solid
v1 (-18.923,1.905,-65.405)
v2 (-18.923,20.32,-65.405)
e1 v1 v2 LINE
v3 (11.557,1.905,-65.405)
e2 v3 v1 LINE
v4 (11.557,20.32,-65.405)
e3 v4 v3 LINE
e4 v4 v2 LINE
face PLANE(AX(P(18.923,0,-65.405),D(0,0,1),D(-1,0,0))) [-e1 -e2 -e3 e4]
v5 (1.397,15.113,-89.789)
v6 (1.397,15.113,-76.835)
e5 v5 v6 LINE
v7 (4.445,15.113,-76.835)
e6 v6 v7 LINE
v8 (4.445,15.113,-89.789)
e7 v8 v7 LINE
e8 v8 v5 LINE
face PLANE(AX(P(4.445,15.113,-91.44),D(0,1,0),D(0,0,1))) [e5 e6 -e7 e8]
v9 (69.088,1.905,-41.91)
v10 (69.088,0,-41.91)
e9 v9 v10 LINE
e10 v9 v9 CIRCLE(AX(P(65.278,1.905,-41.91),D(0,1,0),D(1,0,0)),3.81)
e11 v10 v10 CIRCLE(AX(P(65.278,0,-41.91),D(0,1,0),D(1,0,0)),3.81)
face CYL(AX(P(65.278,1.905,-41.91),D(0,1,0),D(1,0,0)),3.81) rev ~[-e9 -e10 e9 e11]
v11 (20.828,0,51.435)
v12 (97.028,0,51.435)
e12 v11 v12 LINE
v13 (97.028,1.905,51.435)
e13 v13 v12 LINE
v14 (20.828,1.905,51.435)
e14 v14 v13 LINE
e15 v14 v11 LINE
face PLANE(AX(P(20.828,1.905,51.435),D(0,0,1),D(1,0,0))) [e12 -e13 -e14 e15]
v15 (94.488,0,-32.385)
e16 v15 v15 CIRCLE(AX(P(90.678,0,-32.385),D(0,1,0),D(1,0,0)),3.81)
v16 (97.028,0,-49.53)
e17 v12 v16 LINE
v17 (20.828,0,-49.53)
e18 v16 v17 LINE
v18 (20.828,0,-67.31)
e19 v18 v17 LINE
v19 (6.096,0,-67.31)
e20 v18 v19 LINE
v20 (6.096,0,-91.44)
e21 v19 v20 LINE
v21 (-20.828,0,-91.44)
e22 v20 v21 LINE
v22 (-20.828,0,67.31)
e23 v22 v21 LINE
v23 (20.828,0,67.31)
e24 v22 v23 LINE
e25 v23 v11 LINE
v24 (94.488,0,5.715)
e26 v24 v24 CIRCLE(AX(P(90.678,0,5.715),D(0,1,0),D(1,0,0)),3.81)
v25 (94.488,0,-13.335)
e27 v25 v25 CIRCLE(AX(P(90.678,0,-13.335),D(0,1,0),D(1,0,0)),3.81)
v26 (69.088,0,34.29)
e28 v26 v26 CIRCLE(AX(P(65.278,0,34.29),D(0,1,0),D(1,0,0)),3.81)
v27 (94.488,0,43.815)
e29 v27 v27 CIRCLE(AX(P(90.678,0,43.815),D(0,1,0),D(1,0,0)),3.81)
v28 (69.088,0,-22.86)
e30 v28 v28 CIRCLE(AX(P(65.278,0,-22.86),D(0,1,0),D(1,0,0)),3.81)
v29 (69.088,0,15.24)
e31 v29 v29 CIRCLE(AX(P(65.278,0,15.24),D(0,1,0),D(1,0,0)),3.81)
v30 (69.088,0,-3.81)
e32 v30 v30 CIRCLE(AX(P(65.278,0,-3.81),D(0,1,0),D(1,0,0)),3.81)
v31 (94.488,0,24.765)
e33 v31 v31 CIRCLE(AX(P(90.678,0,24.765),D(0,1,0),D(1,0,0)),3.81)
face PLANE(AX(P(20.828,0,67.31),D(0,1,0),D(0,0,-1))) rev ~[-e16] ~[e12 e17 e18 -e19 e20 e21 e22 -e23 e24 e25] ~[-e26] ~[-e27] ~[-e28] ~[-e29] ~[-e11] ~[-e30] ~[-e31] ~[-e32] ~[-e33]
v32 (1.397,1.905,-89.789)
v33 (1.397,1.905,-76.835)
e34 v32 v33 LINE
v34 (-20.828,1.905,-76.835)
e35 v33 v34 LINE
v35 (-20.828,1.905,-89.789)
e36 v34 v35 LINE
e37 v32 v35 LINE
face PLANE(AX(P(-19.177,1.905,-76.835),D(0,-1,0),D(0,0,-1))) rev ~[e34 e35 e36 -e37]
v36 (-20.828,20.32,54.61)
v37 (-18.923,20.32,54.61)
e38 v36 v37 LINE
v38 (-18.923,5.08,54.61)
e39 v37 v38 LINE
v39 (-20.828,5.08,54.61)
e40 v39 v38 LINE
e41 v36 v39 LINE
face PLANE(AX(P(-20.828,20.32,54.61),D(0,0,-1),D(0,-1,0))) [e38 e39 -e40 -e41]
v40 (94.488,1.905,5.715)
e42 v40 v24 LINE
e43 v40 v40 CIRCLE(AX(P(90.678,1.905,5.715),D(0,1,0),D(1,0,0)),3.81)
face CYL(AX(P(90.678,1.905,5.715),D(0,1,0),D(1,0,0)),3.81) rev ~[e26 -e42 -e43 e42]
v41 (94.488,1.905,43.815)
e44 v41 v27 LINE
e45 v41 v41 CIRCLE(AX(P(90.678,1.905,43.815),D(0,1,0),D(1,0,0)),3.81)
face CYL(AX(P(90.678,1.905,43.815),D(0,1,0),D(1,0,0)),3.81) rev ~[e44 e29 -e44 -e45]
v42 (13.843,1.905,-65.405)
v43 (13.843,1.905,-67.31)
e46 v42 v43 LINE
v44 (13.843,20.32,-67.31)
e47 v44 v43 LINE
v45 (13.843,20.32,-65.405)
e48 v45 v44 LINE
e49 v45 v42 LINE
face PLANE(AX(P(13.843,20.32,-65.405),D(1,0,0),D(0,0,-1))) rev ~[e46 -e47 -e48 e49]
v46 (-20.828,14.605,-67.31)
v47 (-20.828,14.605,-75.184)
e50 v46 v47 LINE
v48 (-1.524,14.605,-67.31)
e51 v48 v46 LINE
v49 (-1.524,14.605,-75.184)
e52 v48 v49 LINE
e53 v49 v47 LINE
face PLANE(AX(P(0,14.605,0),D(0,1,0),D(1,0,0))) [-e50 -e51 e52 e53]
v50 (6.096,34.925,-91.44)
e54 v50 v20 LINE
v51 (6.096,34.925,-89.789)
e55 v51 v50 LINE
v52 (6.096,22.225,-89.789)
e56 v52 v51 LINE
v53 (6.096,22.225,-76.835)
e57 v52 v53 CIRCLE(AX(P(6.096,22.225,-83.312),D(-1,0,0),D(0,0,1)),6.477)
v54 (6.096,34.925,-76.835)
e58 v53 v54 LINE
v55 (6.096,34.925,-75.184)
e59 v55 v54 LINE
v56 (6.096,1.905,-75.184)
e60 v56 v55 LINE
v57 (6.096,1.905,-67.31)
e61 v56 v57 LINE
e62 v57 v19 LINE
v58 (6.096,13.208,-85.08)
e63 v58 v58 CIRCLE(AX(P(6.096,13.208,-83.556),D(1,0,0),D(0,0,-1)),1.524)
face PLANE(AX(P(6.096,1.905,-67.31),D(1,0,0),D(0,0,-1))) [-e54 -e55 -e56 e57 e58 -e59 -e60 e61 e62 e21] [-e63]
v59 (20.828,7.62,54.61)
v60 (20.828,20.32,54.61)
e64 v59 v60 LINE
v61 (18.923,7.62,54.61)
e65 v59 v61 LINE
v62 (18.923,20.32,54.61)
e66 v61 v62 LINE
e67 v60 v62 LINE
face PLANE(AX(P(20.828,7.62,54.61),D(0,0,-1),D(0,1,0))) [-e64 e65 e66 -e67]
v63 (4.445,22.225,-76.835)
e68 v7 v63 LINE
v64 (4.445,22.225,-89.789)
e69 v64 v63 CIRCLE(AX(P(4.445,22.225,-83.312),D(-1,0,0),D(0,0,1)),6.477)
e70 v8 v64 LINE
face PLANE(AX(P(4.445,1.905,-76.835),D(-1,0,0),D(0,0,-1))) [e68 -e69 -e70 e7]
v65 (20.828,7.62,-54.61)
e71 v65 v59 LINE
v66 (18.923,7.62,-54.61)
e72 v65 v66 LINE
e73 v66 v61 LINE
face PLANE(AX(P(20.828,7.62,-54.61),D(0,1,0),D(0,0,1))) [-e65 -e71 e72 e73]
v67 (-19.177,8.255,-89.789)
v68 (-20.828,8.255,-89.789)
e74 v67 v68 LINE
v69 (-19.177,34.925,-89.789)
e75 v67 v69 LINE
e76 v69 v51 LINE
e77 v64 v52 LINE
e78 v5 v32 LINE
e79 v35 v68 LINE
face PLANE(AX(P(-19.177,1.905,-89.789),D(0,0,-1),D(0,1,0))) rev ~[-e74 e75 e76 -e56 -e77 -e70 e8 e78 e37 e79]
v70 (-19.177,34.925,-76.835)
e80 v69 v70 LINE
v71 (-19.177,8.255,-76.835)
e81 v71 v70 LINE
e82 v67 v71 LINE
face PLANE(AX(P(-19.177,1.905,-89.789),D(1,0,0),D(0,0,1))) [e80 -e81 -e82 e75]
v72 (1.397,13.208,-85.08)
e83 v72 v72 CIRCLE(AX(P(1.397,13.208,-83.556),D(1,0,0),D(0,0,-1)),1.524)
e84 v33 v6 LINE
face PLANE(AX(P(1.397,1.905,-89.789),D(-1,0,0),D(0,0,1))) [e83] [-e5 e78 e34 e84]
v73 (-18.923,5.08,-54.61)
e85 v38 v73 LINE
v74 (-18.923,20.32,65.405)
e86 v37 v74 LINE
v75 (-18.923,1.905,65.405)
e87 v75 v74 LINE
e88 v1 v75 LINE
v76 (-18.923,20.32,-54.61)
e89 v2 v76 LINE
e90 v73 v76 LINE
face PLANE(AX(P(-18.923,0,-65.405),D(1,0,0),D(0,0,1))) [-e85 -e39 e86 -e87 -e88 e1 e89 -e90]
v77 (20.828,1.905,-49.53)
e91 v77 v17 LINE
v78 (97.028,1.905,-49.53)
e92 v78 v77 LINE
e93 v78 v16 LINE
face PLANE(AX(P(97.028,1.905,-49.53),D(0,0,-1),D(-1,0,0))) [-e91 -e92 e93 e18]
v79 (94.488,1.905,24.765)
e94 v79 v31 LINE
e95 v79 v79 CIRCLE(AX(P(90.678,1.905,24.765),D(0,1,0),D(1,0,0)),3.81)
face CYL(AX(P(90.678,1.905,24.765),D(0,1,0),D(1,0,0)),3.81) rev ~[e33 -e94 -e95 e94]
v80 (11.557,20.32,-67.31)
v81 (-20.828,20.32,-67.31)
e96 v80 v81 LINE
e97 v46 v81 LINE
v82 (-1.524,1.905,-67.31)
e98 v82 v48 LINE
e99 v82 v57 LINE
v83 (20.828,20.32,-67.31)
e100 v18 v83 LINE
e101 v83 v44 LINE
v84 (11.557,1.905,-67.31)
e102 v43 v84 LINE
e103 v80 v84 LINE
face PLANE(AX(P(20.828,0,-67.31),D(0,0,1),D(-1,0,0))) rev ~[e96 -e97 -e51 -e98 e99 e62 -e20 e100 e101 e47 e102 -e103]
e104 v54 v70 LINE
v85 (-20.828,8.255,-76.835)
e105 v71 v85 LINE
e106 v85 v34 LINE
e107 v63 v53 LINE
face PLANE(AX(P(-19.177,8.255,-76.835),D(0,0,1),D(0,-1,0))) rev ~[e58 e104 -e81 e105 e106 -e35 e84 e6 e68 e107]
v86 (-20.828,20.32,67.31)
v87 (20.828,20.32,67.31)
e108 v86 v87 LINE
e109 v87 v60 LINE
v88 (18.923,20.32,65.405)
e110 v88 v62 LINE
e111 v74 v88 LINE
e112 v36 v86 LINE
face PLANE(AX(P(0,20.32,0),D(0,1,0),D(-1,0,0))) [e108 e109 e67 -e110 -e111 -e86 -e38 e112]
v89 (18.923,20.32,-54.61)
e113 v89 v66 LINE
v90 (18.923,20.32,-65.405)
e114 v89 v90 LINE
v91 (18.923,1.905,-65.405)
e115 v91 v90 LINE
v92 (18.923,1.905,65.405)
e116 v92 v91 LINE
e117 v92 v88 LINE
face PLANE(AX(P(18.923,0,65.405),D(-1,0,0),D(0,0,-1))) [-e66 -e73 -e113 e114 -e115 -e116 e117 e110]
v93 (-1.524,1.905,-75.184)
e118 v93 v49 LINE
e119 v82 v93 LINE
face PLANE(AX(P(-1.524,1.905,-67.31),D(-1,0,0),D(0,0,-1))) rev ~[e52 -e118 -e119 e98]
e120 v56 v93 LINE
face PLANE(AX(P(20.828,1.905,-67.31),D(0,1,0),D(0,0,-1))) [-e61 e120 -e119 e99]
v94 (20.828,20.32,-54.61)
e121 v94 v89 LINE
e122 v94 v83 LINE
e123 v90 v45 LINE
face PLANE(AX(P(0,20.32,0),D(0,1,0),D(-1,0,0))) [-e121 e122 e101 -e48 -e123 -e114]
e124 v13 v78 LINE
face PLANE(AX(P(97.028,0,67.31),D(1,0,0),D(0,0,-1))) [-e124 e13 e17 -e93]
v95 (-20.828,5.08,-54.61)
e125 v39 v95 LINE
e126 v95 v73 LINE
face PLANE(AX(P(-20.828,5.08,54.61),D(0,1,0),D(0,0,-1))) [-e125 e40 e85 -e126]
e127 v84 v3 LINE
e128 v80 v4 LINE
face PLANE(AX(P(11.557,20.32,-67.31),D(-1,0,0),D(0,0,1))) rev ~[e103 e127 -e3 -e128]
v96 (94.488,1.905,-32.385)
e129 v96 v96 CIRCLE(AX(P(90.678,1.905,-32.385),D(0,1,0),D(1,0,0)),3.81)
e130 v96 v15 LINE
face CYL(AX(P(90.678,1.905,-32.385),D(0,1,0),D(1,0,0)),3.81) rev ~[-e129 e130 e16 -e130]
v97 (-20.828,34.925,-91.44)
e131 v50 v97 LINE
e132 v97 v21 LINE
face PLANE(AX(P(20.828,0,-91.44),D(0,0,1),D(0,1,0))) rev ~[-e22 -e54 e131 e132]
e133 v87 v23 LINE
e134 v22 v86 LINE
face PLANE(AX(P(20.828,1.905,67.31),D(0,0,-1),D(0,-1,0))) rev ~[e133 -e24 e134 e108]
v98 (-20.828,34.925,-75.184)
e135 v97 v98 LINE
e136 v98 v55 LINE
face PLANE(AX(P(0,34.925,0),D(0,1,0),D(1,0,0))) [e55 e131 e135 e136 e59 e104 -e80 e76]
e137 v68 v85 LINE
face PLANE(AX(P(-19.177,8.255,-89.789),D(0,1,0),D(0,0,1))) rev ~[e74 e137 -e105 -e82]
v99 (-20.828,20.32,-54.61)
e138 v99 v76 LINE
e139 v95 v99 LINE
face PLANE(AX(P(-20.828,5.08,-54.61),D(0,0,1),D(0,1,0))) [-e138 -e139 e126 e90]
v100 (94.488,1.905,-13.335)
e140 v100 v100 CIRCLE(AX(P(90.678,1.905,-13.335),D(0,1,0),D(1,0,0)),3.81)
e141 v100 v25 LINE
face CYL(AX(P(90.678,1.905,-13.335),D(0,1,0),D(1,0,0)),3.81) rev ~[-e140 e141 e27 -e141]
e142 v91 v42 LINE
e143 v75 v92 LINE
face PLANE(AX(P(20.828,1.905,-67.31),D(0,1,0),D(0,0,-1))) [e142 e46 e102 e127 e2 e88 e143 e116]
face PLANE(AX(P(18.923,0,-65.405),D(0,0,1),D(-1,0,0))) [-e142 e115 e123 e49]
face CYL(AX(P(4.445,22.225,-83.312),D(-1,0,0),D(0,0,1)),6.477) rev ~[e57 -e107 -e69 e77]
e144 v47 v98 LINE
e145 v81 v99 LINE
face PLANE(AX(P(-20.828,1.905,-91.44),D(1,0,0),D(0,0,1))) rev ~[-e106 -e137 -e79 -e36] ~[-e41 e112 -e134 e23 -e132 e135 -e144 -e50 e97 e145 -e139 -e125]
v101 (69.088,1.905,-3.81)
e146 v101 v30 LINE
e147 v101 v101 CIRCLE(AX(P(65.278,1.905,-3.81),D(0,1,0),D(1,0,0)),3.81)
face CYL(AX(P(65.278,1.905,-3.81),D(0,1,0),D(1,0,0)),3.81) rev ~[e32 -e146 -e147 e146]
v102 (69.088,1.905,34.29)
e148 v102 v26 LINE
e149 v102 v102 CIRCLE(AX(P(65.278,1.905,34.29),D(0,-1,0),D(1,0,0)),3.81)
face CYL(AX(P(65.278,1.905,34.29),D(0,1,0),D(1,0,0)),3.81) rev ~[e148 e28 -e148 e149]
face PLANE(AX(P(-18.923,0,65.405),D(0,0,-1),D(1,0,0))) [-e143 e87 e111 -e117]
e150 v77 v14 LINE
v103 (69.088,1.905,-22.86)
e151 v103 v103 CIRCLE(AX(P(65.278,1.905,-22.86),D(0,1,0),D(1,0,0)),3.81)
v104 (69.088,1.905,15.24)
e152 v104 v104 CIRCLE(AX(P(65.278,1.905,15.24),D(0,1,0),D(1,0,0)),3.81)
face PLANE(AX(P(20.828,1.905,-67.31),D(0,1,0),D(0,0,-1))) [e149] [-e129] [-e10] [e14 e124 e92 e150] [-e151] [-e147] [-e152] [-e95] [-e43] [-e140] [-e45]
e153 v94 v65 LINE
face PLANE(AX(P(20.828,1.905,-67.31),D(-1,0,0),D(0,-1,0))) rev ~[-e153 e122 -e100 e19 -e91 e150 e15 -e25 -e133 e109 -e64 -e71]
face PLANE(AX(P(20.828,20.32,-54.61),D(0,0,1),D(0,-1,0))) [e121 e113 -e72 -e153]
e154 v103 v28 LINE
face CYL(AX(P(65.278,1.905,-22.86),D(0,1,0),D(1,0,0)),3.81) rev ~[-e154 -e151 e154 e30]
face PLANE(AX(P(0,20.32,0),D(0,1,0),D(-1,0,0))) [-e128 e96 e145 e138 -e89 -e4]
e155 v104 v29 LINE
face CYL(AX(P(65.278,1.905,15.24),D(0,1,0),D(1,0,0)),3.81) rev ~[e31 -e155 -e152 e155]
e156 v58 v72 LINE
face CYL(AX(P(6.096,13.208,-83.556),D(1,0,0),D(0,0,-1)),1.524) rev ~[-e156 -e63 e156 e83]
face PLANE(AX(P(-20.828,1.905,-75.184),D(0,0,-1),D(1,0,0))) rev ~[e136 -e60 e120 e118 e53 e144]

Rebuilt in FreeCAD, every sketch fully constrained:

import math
import FreeCAD as App
import Part
import Sketcher

V = App.Vector
Q = App.Units.Quantity

doc = App.newDocument("Part")
body = doc.addObject("PartDesign::Body", "Body")

sketch1 = doc.addObject("Sketcher::SketchObject", "Sketch")
body.addObject(sketch1)
sketch1.AttachmentSupport = (doc.XZ_Plane, [""])
sketch1.MapMode = "FlatFace"
sketch1.addGeometry([
    Part.LineSegment(V(-20.828, -67.31, 0), V(-20.828, 67.31, 0)),
    Part.LineSegment(V(-20.828, 67.31, 0), V(20.828, 67.31, 0)),
    Part.LineSegment(V(20.828, 67.31, 0), V(20.828, -67.31, 0)),
    Part.LineSegment(V(20.828, -67.31, 0), V(-20.828, -67.31, 0)),
    Part.LineSegment(V(18.923, 65.405, 0), V(-18.923, 65.405, 0)),
    Part.LineSegment(V(-18.923, 65.405, 0), V(-18.923, -65.405, 0)),
    Part.LineSegment(V(-18.923, -65.405, 0), V(18.923, -65.405, 0)),
    Part.LineSegment(V(18.923, -65.405, 0), V(18.923, 65.405, 0)),
], False)
sketch1.addConstraint([
    Sketcher.Constraint("Coincident", 0, 2, 1, 1),
    Sketcher.Constraint("Coincident", 1, 2, 2, 1),
    Sketcher.Constraint("Coincident", 2, 2, 3, 1),
    Sketcher.Constraint("Coincident", 3, 2, 0, 1),
    Sketcher.Constraint("Coincident", 4, 2, 5, 1),
    Sketcher.Constraint("Coincident", 5, 2, 6, 1),
    Sketcher.Constraint("Coincident", 6, 2, 7, 1),
    Sketcher.Constraint("Coincident", 7, 2, 4, 1),
    Sketcher.Constraint("Vertical", 0),
    Sketcher.Constraint("Horizontal", 1),
    Sketcher.Constraint("Vertical", 2),
    Sketcher.Constraint("Horizontal", 3),
    Sketcher.Constraint("Horizontal", 4),
    Sketcher.Constraint("Vertical", 5),
    Sketcher.Constraint("Horizontal", 6),
    Sketcher.Constraint("Vertical", 7),
    Sketcher.Constraint("Symmetric", 0, 2, 2, 2, -1, 1),
    Sketcher.Constraint("Symmetric", 4, 2, 6, 2, -1, 1),
    Sketcher.Constraint("DistanceX", 4, 2, 4, 1, Q("1.49 in")),
    Sketcher.Constraint("DistanceY", 5, 2, 5, 1, Q("5.15 in")),
    Sketcher.Constraint("DistanceY", 0, 1, 0, 2, Q("5.3 in")),
    Sketcher.Constraint("DistanceX", 0, 2, 4, 2, Q("0.075 in")),
])
pad1 = doc.addObject("PartDesign::Pad", "Pad")
body.addObject(pad1)
pad1.Profile = sketch1
pad1.Length = Q("0.8 in")
pad1.Reversed = True

sketch2 = doc.addObject("Sketcher::SketchObject", "Sketch001")
body.addObject(sketch2)
sketch2.AttachmentSupport = (doc.XZ_Plane, [""])
sketch2.MapMode = "FlatFace"
sketch2.addGeometry([
    Part.LineSegment(V(-18.923, -65.405, 0), V(-18.923, 65.405, 0)),
    Part.LineSegment(V(-18.923, 65.405, 0), V(18.923, 65.405, 0)),
    Part.LineSegment(V(18.923, 65.405, 0), V(18.923, -65.405, 0)),
    Part.LineSegment(V(18.923, -65.405, 0), V(-18.923, -65.405, 0)),
], False)
sketch2.addConstraint([
    Sketcher.Constraint("Coincident", 0, 2, 1, 1),
    Sketcher.Constraint("Coincident", 1, 2, 2, 1),
    Sketcher.Constraint("Coincident", 2, 2, 3, 1),
    Sketcher.Constraint("Coincident", 3, 2, 0, 1),
    Sketcher.Constraint("Vertical", 0),
    Sketcher.Constraint("Horizontal", 1),
    Sketcher.Constraint("Vertical", 2),
    Sketcher.Constraint("Horizontal", 3),
    Sketcher.Constraint("Symmetric", 0, 2, 2, 2, -1, 1),
    Sketcher.Constraint("DistanceX", 1, 1, 1, 2, Q("1.49 in")),
    Sketcher.Constraint("DistanceY", 0, 1, 0, 2, Q("5.15 in")),
])
pad2 = doc.addObject("PartDesign::Pad", "Pad001")
body.addObject(pad2)
pad2.Profile = sketch2
pad2.Length = Q("0.075 in")
pad2.Reversed = True

sketch3 = doc.addObject("Sketcher::SketchObject", "Sketch002")
body.addObject(sketch3)
sketch3.AttachmentSupport = (doc.YZ_Plane, [""])
sketch3.MapMode = "FlatFace"
sketch3.AttachmentOffset = App.Placement(V(0, 0, 0.82 * 25.4), App.Rotation())
sketch3.addGeometry([
    Part.LineSegment(V(20.32, -54.61, 0), V(20.32, 54.61, 0)),
    Part.LineSegment(V(20.32, 54.61, 0), V(7.62, 54.61, 0)),
    Part.LineSegment(V(7.62, 54.61, 0), V(7.62, -54.61, 0)),
    Part.LineSegment(V(7.62, -54.61, 0), V(20.32, -54.61, 0)),
], False)
sketch3.addConstraint([
    Sketcher.Constraint("Coincident", 0, 2, 1, 1),
    Sketcher.Constraint("Coincident", 1, 2, 2, 1),
    Sketcher.Constraint("Coincident", 2, 2, 3, 1),
    Sketcher.Constraint("Coincident", 3, 2, 0, 1),
    Sketcher.Constraint("Vertical", 0),
    Sketcher.Constraint("Horizontal", 1),
    Sketcher.Constraint("Vertical", 2),
    Sketcher.Constraint("Horizontal", 3),
    Sketcher.Constraint("DistanceX", 1, 2, 1, 1, Q("0.5 in")),
    Sketcher.Constraint("DistanceX", -1, 1, 1, 2, Q("0.3 in")),
    Sketcher.Constraint("DistanceY", 0, 1, 0, 2, Q("4.3 in")),
    Sketcher.Constraint("DistanceY", -1, 1, 0, 2, Q("2.15 in")),
])
pocket1 = doc.addObject("PartDesign::Pocket", "Pocket")
body.addObject(pocket1)
pocket1.Profile = sketch3
pocket1.Length = Q("0.075 in")

sketch4 = doc.addObject("Sketcher::SketchObject", "Sketch003")
body.addObject(sketch4)
sketch4.AttachmentSupport = (doc.YZ_Plane, [""])
sketch4.MapMode = "FlatFace"
sketch4.AttachmentOffset = App.Placement(V(0, 0, -0.82 * 25.4), App.Rotation())
sketch4.addGeometry([
    Part.LineSegment(V(20.32, 54.61, 0), V(20.32, -54.61, 0)),
    Part.LineSegment(V(20.32, -54.61, 0), V(5.08, -54.61, 0)),
    Part.LineSegment(V(5.08, -54.61, 0), V(5.08, 54.61, 0)),
    Part.LineSegment(V(5.08, 54.61, 0), V(20.32, 54.61, 0)),
], False)
sketch4.addConstraint([
    Sketcher.Constraint("Coincident", 0, 2, 1, 1),
    Sketcher.Constraint("Coincident", 1, 2, 2, 1),
    Sketcher.Constraint("Coincident", 2, 2, 3, 1),
    Sketcher.Constraint("Coincident", 3, 2, 0, 1),
    Sketcher.Constraint("Vertical", 0),
    Sketcher.Constraint("Horizontal", 1),
    Sketcher.Constraint("Vertical", 2),
    Sketcher.Constraint("Horizontal", 3),
    Sketcher.Constraint("DistanceX", -1, 1, 1, 2, Q("0.2 in")),
    Sketcher.Constraint("DistanceX", 1, 2, 1, 1, Q("0.6 in")),
    Sketcher.Constraint("DistanceY", 0, 2, 0, 1, Q("4.3 in")),
    Sketcher.Constraint("DistanceY", 0, 2, -1, 1, Q("2.15 in")),
])
pocket2 = doc.addObject("PartDesign::Pocket", "Pocket001")
body.addObject(pocket2)
pocket2.Profile = sketch4
pocket2.Length = Q("0.075 in")
pocket2.Reversed = True

sketch5 = doc.addObject("Sketcher::SketchObject", "Sketch004")
body.addObject(sketch5)
sketch5.AttachmentSupport = (doc.XZ_Plane, [""])
sketch5.MapMode = "FlatFace"
sketch5.AttachmentOffset = App.Placement(V(0, 0, -0.8 * 25.4), App.Rotation())
sketch5.addGeometry([
    Part.LineSegment(V(13.843, -65.405, 0), V(13.843, -67.31, 0)),
    Part.LineSegment(V(13.843, -67.31, 0), V(11.557, -67.31, 0)),
    Part.LineSegment(V(11.557, -67.31, 0), V(11.557, -65.405, 0)),
    Part.LineSegment(V(11.557, -65.405, 0), V(13.843, -65.405, 0)),
], False)
sketch5.addConstraint([
    Sketcher.Constraint("Coincident", 0, 2, 1, 1),
    Sketcher.Constraint("Coincident", 1, 2, 2, 1),
    Sketcher.Constraint("Coincident", 2, 2, 3, 1),
    Sketcher.Constraint("Coincident", 3, 2, 0, 1),
    Sketcher.Constraint("Vertical", 0),
    Sketcher.Constraint("Horizontal", 1),
    Sketcher.Constraint("Vertical", 2),
    Sketcher.Constraint("Horizontal", 3),
    Sketcher.Constraint("DistanceX", 1, 2, 1, 1, Q("0.09 in")),
    Sketcher.Constraint("DistanceY", 0, 2, 0, 1, Q("0.075 in")),
    Sketcher.Constraint("DistanceY", 0, 2, -1, 1, Q("2.65 in")),
    Sketcher.Constraint("DistanceX", -1, 1, 0, 2, Q("0.545 in")),
])
pocket3 = doc.addObject("PartDesign::Pocket", "Pocket002")
body.addObject(pocket3)
pocket3.Profile = sketch5
pocket3.Length = Q("0.725 in")
pocket3.Reversed = True

sketch6 = doc.addObject("Sketcher::SketchObject", "Sketch005")
body.addObject(sketch6)
sketch6.AttachmentSupport = (doc.XY_Plane, [""])
sketch6.MapMode = "FlatFace"
sketch6.AttachmentOffset = App.Placement(V(0, 0, -2.65 * 25.4), App.Rotation())
sketch6.addGeometry([
    Part.LineSegment(V(20.828, 1.905, 0), V(20.828, 0, 0)),
    Part.LineSegment(V(20.828, 0, 0), V(-20.828, 0, 0)),
    Part.LineSegment(V(-20.828, 0, 0), V(-20.828, 1.905, 0)),
    Part.LineSegment(V(-20.828, 1.905, 0), V(20.828, 1.905, 0)),
], False)
sketch6.addConstraint([
    Sketcher.Constraint("Coincident", 0, 2, 1, 1),
    Sketcher.Constraint("Coincident", 1, 2, 2, 1),
    Sketcher.Constraint("Coincident", 2, 2, 3, 1),
    Sketcher.Constraint("Coincident", 3, 2, 0, 1),
    Sketcher.Constraint("Vertical", 0),
    Sketcher.Constraint("Horizontal", 1),
    Sketcher.Constraint("Vertical", 2),
    Sketcher.Constraint("Horizontal", 3),
    Sketcher.Constraint("Symmetric", 0, 2, 1, 2, -1, 1),
    Sketcher.Constraint("DistanceX", 1, 2, 1, 1, Q("1.64 in")),
    Sketcher.Constraint("DistanceY", 0, 2, 0, 1, Q("0.075 in")),
])
pad3 = doc.addObject("PartDesign::Pad", "Pad002")
body.addObject(pad3)
pad3.Profile = sketch6
pad3.Length = Q("0.95 in")
pad3.Reversed = True

sketch7 = doc.addObject("Sketcher::SketchObject", "Sketch006")
body.addObject(sketch7)
sketch7.AttachmentSupport = (doc.XZ_Plane, [""])
sketch7.MapMode = "FlatFace"
sketch7.AttachmentOffset = App.Placement(V(0, 0, -0.075 * 25.4), App.Rotation())
sketch7.addGeometry([
    Part.LineSegment(V(-20.828, -91.44, 0), V(-20.828, -75.184, 0)),
    Part.LineSegment(V(-20.828, -75.184, 0), V(6.096, -75.184, 0)),
    Part.LineSegment(V(6.096, -75.184, 0), V(6.096, -91.44, 0)),
    Part.LineSegment(V(6.096, -91.44, 0), V(-20.828, -91.44, 0)),
    Part.LineSegment(V(4.445, -76.835, 0), V(-19.177, -76.835, 0)),
    Part.LineSegment(V(-19.177, -76.835, 0), V(-19.177, -89.789, 0)),
    Part.LineSegment(V(-19.177, -89.789, 0), V(4.445, -89.789, 0)),
    Part.LineSegment(V(4.445, -89.789, 0), V(4.445, -76.835, 0)),
], False)
sketch7.addConstraint([
    Sketcher.Constraint("Coincident", 0, 2, 1, 1),
    Sketcher.Constraint("Coincident", 1, 2, 2, 1),
    Sketcher.Constraint("Coincident", 2, 2, 3, 1),
    Sketcher.Constraint("Coincident", 3, 2, 0, 1),
    Sketcher.Constraint("Coincident", 4, 2, 5, 1),
    Sketcher.Constraint("Coincident", 5, 2, 6, 1),
    Sketcher.Constraint("Coincident", 6, 2, 7, 1),
    Sketcher.Constraint("Coincident", 7, 2, 4, 1),
    Sketcher.Constraint("Vertical", 0),
    Sketcher.Constraint("Horizontal", 1),
    Sketcher.Constraint("Vertical", 2),
    Sketcher.Constraint("Horizontal", 3),
    Sketcher.Constraint("Horizontal", 4),
    Sketcher.Constraint("Vertical", 5),
    Sketcher.Constraint("Horizontal", 6),
    Sketcher.Constraint("Vertical", 7),
    Sketcher.Constraint("DistanceX", 4, 2, 4, 1, Q("0.93 in")),
    Sketcher.Constraint("DistanceY", 5, 2, 5, 1, Q("0.51 in")),
    Sketcher.Constraint("DistanceX", 1, 1, 1, 2, Q("1.06 in")),
    Sketcher.Constraint("DistanceY", 0, 1, 0, 2, Q("0.64 in")),
    Sketcher.Constraint("DistanceY", 2, 2, -1, 1, Q("3.6 in")),
    Sketcher.Constraint("DistanceX", 0, 2, -1, 1, Q("0.82 in")),
    Sketcher.Constraint("DistanceX", 4, 2, -1, 1, Q("0.755 in")),
    Sketcher.Constraint("DistanceY", 4, 2, -1, 1, Q("3.025 in")),
])
pad4 = doc.addObject("PartDesign::Pad", "Pad003")
body.addObject(pad4)
pad4.Profile = sketch7
pad4.Length = Q("1.3 in")
pad4.Reversed = True

sketch8 = doc.addObject("Sketcher::SketchObject", "Sketch007")
body.addObject(sketch8)
sketch8.AttachmentSupport = (doc.YZ_Plane, [""])
sketch8.MapMode = "FlatFace"
sketch8.AttachmentOffset = App.Placement(V(0, 0, 0.175 * 25.4), App.Rotation())
sketch8.addGeometry([
    Part.ArcOfCircle(Part.Circle(V(22.225, -83.312, 0), V(0, 0, 1), 6.477), math.radians(90), math.radians(270)),
    Part.LineSegment(V(22.225, -76.835, 0), V(34.925, -76.835, 0)),
    Part.LineSegment(V(34.925, -76.835, 0), V(34.925, -89.789, 0)),
    Part.LineSegment(V(34.925, -89.789, 0), V(22.225, -89.789, 0)),
], False)
sketch8.addConstraint([
    Sketcher.Constraint("Tangent", 0, 1, 1, 1),
    Sketcher.Constraint("Coincident", 1, 2, 2, 1),
    Sketcher.Constraint("Coincident", 2, 2, 3, 1),
    Sketcher.Constraint("Tangent", 3, 2, 0, 2),
    Sketcher.Constraint("Horizontal", 1),
    Sketcher.Constraint("Vertical", 2),
    Sketcher.Constraint("Horizontal", 3),
    Sketcher.Constraint("DistanceX", 1, 1, 1, 2, Q("0.5 in")),
    Sketcher.Constraint("Radius", 0, Q("0.255 in")),
    Sketcher.Constraint("DistanceY", 0, 3, -1, 1, Q("3.28 in")),
    Sketcher.Constraint("DistanceX", -1, 1, 0, 3, Q("0.875 in")),
])
pocket4 = doc.addObject("PartDesign::Pocket", "Pocket003")
body.addObject(pocket4)
pocket4.Profile = sketch8
pocket4.Length = Q("1.3 in")
pocket4.Reversed = True

sketch9 = doc.addObject("Sketcher::SketchObject", "Sketch008")
body.addObject(sketch9)
sketch9.AttachmentSupport = (doc.YZ_Plane, [""])
sketch9.MapMode = "FlatFace"
sketch9.AttachmentOffset = App.Placement(V(0, 0, 0.175 * 25.4), App.Rotation())
sketch9.addGeometry([
    Part.LineSegment(V(15.113, -91.44, 0), V(1.905, -91.44, 0)),
    Part.LineSegment(V(1.905, -91.44, 0), V(1.905, -75.184, 0)),
    Part.LineSegment(V(1.905, -75.184, 0), V(15.113, -75.184, 0)),
    Part.LineSegment(V(15.113, -75.184, 0), V(15.113, -91.44, 0)),
], False)
sketch9.addConstraint([
    Sketcher.Constraint("Coincident", 0, 2, 1, 1),
    Sketcher.Constraint("Coincident", 1, 2, 2, 1),
    Sketcher.Constraint("Coincident", 2, 2, 3, 1),
    Sketcher.Constraint("Coincident", 3, 2, 0, 1),
    Sketcher.Constraint("Horizontal", 0),
    Sketcher.Constraint("Vertical", 1),
    Sketcher.Constraint("Horizontal", 2),
    Sketcher.Constraint("Vertical", 3),
    Sketcher.Constraint("DistanceX", 0, 2, 0, 1, Q("0.52 in")),
    Sketcher.Constraint("DistanceY", 1, 1, 1, 2, Q("0.64 in")),
    Sketcher.Constraint("DistanceY", 0, 2, -1, 1, Q("3.6 in")),
    Sketcher.Constraint("DistanceX", -1, 1, 0, 2, Q("0.075 in")),
])
pad5 = doc.addObject("PartDesign::Pad", "Pad004")
body.addObject(pad5)
pad5.Profile = sketch9
pad5.Length = Q("0.12 in")
pad5.Reversed = True

sketch10 = doc.addObject("Sketcher::SketchObject", "Sketch009")
body.addObject(sketch10)
sketch10.AttachmentSupport = (doc.YZ_Plane, [""])
sketch10.MapMode = "FlatFace"
sketch10.AttachmentOffset = App.Placement(V(0, 0, 0.24 * 25.4), App.Rotation())
sketch10.addGeometry(Part.Circle(V(13.208, -83.556, 0), V(0, 0, 1), 1.524), False)
sketch10.addConstraint([
    Sketcher.Constraint("Diameter", 0, Q("0.12 in")),
    Sketcher.Constraint("DistanceX", -1, 1, 0, 3, Q("0.52 in")),
    Sketcher.Constraint("DistanceY", 0, 3, -1, 1, Q("3.2896 in")),
])
pocket5 = doc.addObject("PartDesign::Pocket", "Pocket004")
body.addObject(pocket5)
pocket5.Profile = sketch10
pocket5.Length = Q("0.995 in")

sketch11 = doc.addObject("Sketcher::SketchObject", "Sketch010")
body.addObject(sketch11)
sketch11.AttachmentSupport = (doc.YZ_Plane, [""])
sketch11.MapMode = "FlatFace"
sketch11.AttachmentOffset = App.Placement(V(0, 0, 0.82 * 25.4), App.Rotation())
sketch11.addGeometry([
    Part.LineSegment(V(1.905, -91.44, 0), V(1.905, 67.31, 0)),
    Part.LineSegment(V(1.905, 67.31, 0), V(0, 67.31, 0)),
    Part.LineSegment(V(0, 67.31, 0), V(0, -91.44, 0)),
    Part.LineSegment(V(0, -91.44, 0), V(1.905, -91.44, 0)),
], False)
sketch11.addConstraint([
    Sketcher.Constraint("Coincident", 0, 2, 1, 1),
    Sketcher.Constraint("Coincident", 1, 2, 2, 1),
    Sketcher.Constraint("Coincident", 2, 2, 3, 1),
    Sketcher.Constraint("Coincident", 3, 2, 0, 1),
    Sketcher.Constraint("Vertical", 0),
    Sketcher.Constraint("Horizontal", 1),
    Sketcher.Constraint("Vertical", 2),
    Sketcher.Constraint("Horizontal", 3),
    Sketcher.Constraint("PointOnObject", 1, 2, -2),
    Sketcher.Constraint("DistanceY", 0, 1, 0, 2, Q("6.25 in")),
    Sketcher.Constraint("DistanceY", 2, 2, -1, 1, Q("3.6 in")),
    Sketcher.Constraint("DistanceX", 1, 2, 1, 1, Q("0.075 in")),
])
pad6 = doc.addObject("PartDesign::Pad", "Pad005")
body.addObject(pad6)
pad6.Profile = sketch11
pad6.Length = Q("3 in")

sketch12 = doc.addObject("Sketcher::SketchObject", "Sketch011")
body.addObject(sketch12)
sketch12.AttachmentSupport = (doc.XZ_Plane, [""])
sketch12.MapMode = "FlatFace"
sketch12.AttachmentOffset = App.Placement(V(0, 0, -0.075 * 25.4), App.Rotation())
sketch12.addGeometry([
    Part.Circle(V(90.678, 43.815, 0), V(0, 0, 1), 3.81),
    Part.LineSegment(V(20.828, -67.31, 0), V(20.828, -49.53, 0)),
    Part.LineSegment(V(20.828, -49.53, 0), V(97.028, -49.53, 0)),
    Part.LineSegment(V(97.028, -49.53, 0), V(97.028, -91.44, 0)),
    Part.LineSegment(V(97.028, -91.44, 0), V(6.096, -91.44, 0)),
    Part.LineSegment(V(6.096, -91.44, 0), V(6.096, -67.31, 0)),
    Part.LineSegment(V(6.096, -67.31, 0), V(20.828, -67.31, 0)),
    Part.LineSegment(V(97.028, 51.435, 0), V(20.828, 51.435, 0)),
    Part.LineSegment(V(20.828, 51.435, 0), V(20.828, 67.31, 0)),
    Part.LineSegment(V(20.828, 67.31, 0), V(97.028, 67.31, 0)),
    Part.LineSegment(V(97.028, 67.31, 0), V(97.028, 51.435, 0)),
    Part.Circle(V(65.278, 34.29, 0), V(0, 0, 1), 3.81),
    Part.Circle(V(90.678, 24.765, 0), V(0, 0, 1), 3.81),
    Part.Circle(V(90.678, 5.715, 0), V(0, 0, 1), 3.81),
    Part.Circle(V(90.678, -13.335, 0), V(0, 0, 1), 3.81),
    Part.Circle(V(90.678, -32.385, 0), V(0, 0, 1), 3.81),
    Part.Circle(V(65.278, 15.24, 0), V(0, 0, 1), 3.81),
    Part.Circle(V(65.278, -3.81, 0), V(0, 0, 1), 3.81),
    Part.Circle(V(65.278, -22.86, 0), V(0, 0, 1), 3.81),
    Part.Circle(V(65.278, -41.91, 0), V(0, 0, 1), 3.81),
], False)
sketch12.addConstraint([
    Sketcher.Constraint("Coincident", 1, 2, 2, 1),
    Sketcher.Constraint("Coincident", 2, 2, 3, 1),
    Sketcher.Constraint("Coincident", 3, 2, 4, 1),
    Sketcher.Constraint("Coincident", 4, 2, 5, 1),
    Sketcher.Constraint("Coincident", 5, 2, 6, 1),
    Sketcher.Constraint("Coincident", 6, 2, 1, 1),
    Sketcher.Constraint("Coincident", 7, 2, 8, 1),
    Sketcher.Constraint("Coincident", 8, 2, 9, 1),
    Sketcher.Constraint("Coincident", 9, 2, 10, 1),
    Sketcher.Constraint("Coincident", 10, 2, 7, 1),
    Sketcher.Constraint("Vertical", 1),
    Sketcher.Constraint("Horizontal", 2),
    Sketcher.Constraint("Vertical", 3),
    Sketcher.Constraint("Horizontal", 4),
    Sketcher.Constraint("Vertical", 5),
    Sketcher.Constraint("Horizontal", 6),
    Sketcher.Constraint("Horizontal", 7),
    Sketcher.Constraint("Vertical", 8),
    Sketcher.Constraint("Horizontal", 9),
    Sketcher.Constraint("Vertical", 10),
    Sketcher.Constraint("Equal", 0, 11),
    Sketcher.Constraint("Equal", 11, 12),
    Sketcher.Constraint("Equal", 12, 13),
    Sketcher.Constraint("Equal", 13, 14),
    Sketcher.Constraint("Equal", 14, 15),
    Sketcher.Constraint("Equal", 15, 16),
    Sketcher.Constraint("Equal", 16, 17),
    Sketcher.Constraint("Equal", 17, 18),
    Sketcher.Constraint("Equal", 18, 19),
    Sketcher.Constraint("Symmetric", 6, 2, 8, 2, -1),
    Sketcher.Constraint("Vertical", 0, 3, 12, 3),
    Sketcher.Constraint("Vertical", 12, 3, 13, 3),
    Sketcher.Constraint("Vertical", 13, 3, 14, 3),
    Sketcher.Constraint("Vertical", 14, 3, 15, 3),
    Sketcher.Constraint("Vertical", 11, 3, 16, 3),
    Sketcher.Constraint("Vertical", 16, 3, 17, 3),
    Sketcher.Constraint("Vertical", 17, 3, 18, 3),
    Sketcher.Constraint("Vertical", 18, 3, 19, 3),
    Sketcher.Constraint("Vertical", 3, 2, 9, 2),
    Sketcher.Constraint("Diameter", 0, Q("0.3 in")),
    Sketcher.Constraint("DistanceX", 11, 3, 0, 3, Q("1 in")),
    Sketcher.Constraint("DistanceY", 5, 2, 19, 3, Q("1 in")),
    Sketcher.Constraint("DistanceY", 1, 2, 19, 3, Q("0.3 in")),
    Sketcher.Constraint("DistanceY", 0, 3, 7, 2, Q("0.3 in")),
    Sketcher.Constraint("DistanceX", 2, 1, 2, 2, Q("3 in")),
    Sketcher.Constraint("DistanceY", 12, 3, 0, 3, Q("0.75 in")),
    Sketcher.Constraint("DistanceY", 13, 3, 12, 3, Q("0.75 in")),
    Sketcher.Constraint("DistanceY", 14, 3, 13, 3, Q("0.75 in")),
    Sketcher.Constraint("DistanceY", 15, 3, 14, 3, Q("0.75 in")),
    Sketcher.Constraint("DistanceY", 16, 3, 11, 3, Q("0.75 in")),
    Sketcher.Constraint("DistanceY", 17, 3, 16, 3, Q("0.75 in")),
    Sketcher.Constraint("DistanceY", 18, 3, 17, 3, Q("0.75 in")),
    Sketcher.Constraint("DistanceY", 19, 3, 18, 3, Q("0.75 in")),
    Sketcher.Constraint("DistanceX", 1, 2, 15, 3, Q("2.75 in")),
    Sketcher.Constraint("DistanceY", 11, 3, 0, 3, Q("0.375 in")),
    Sketcher.Constraint("DistanceX", 4, 2, 4, 1, Q("3.58 in")),
    Sketcher.Constraint("DistanceY", 3, 2, 3, 1, Q("1.65 in")),
    Sketcher.Constraint("DistanceY", -1, 1, 16, 3, Q("0.6 in")),
    Sketcher.Constraint("DistanceX", -1, 1, 0, 3, Q("3.57 in")),
])
pocket6 = doc.addObject("PartDesign::Pocket", "Pocket005")
body.addObject(pocket6)
pocket6.Profile = sketch12
pocket6.Length = Q("2.25 in")
pocket6.Reversed = True

sketch13 = doc.addObject("Sketcher::SketchObject", "Sketch012")
body.addObject(sketch13)
sketch13.AttachmentSupport = (doc.XZ_Plane, [""])
sketch13.MapMode = "FlatFace"
sketch13.AttachmentOffset = App.Placement(V(0, 0, -0.075 * 25.4), App.Rotation())
sketch13.addGeometry([
    Part.LineSegment(V(-1.524, -67.31, 0), V(-1.524, -75.184, 0)),
    Part.LineSegment(V(-1.524, -75.184, 0), V(-20.828, -75.184, 0)),
    Part.LineSegment(V(-20.828, -75.184, 0), V(-20.828, -67.31, 0)),
    Part.LineSegment(V(-20.828, -67.31, 0), V(-1.524, -67.31, 0)),
], False)
sketch13.addConstraint([
    Sketcher.Constraint("Coincident", 0, 2, 1, 1),
    Sketcher.Constraint("Coincident", 1, 2, 2, 1),
    Sketcher.Constraint("Coincident", 2, 2, 3, 1),
    Sketcher.Constraint("Coincident", 3, 2, 0, 1),
    Sketcher.Constraint("Vertical", 0),
    Sketcher.Constraint("Horizontal", 1),
    Sketcher.Constraint("Vertical", 2),
    Sketcher.Constraint("Horizontal", 3),
    Sketcher.Constraint("DistanceX", 1, 2, 1, 1, Q("0.76 in")),
    Sketcher.Constraint("DistanceY", 0, 2, 0, 1, Q("0.31 in")),
    Sketcher.Constraint("DistanceX", 0, 2, -1, 1, Q("0.06 in")),
    Sketcher.Constraint("DistanceY", 0, 2, -1, 1, Q("2.96 in")),
])
pad7 = doc.addObject("PartDesign::Pad", "Pad006")
body.addObject(pad7)
pad7.Profile = sketch13
pad7.Length = Q("0.5 in")
pad7.Reversed = True

sketch14 = doc.addObject("Sketcher::SketchObject", "Sketch013")
body.addObject(sketch14)
sketch14.AttachmentSupport = (doc.YZ_Plane, [""])
sketch14.MapMode = "FlatFace"
sketch14.AttachmentOffset = App.Placement(V(0, 0, -0.755 * 25.4), App.Rotation())
sketch14.addGeometry([
    Part.LineSegment(V(8.255, -76.835, 0), V(1.905, -76.835, 0)),
    Part.LineSegment(V(1.905, -76.835, 0), V(1.905, -89.789, 0)),
    Part.LineSegment(V(1.905, -89.789, 0), V(8.255, -89.789, 0)),
    Part.LineSegment(V(8.255, -89.789, 0), V(8.255, -76.835, 0)),
], False)
sketch14.addConstraint([
    Sketcher.Constraint("Coincident", 0, 2, 1, 1),
    Sketcher.Constraint("Coincident", 1, 2, 2, 1),
    Sketcher.Constraint("Coincident", 2, 2, 3, 1),
    Sketcher.Constraint("Coincident", 3, 2, 0, 1),
    Sketcher.Constraint("Horizontal", 0),
    Sketcher.Constraint("Vertical", 1),
    Sketcher.Constraint("Horizontal", 2),
    Sketcher.Constraint("Vertical", 3),
    Sketcher.Constraint("DistanceX", 0, 2, 0, 1, Q("0.25 in")),
    Sketcher.Constraint("DistanceY", 1, 2, 1, 1, Q("0.51 in")),
    Sketcher.Constraint("DistanceX", -1, 1, 0, 2, Q("0.075 in")),
    Sketcher.Constraint("DistanceY", 0, 2, -1, 1, Q("3.025 in")),
])
pocket7 = doc.addObject("PartDesign::Pocket", "Pocket006")
body.addObject(pocket7)
pocket7.Profile = sketch14
pocket7.Length = Q("2.25 in")

doc.recompute()
